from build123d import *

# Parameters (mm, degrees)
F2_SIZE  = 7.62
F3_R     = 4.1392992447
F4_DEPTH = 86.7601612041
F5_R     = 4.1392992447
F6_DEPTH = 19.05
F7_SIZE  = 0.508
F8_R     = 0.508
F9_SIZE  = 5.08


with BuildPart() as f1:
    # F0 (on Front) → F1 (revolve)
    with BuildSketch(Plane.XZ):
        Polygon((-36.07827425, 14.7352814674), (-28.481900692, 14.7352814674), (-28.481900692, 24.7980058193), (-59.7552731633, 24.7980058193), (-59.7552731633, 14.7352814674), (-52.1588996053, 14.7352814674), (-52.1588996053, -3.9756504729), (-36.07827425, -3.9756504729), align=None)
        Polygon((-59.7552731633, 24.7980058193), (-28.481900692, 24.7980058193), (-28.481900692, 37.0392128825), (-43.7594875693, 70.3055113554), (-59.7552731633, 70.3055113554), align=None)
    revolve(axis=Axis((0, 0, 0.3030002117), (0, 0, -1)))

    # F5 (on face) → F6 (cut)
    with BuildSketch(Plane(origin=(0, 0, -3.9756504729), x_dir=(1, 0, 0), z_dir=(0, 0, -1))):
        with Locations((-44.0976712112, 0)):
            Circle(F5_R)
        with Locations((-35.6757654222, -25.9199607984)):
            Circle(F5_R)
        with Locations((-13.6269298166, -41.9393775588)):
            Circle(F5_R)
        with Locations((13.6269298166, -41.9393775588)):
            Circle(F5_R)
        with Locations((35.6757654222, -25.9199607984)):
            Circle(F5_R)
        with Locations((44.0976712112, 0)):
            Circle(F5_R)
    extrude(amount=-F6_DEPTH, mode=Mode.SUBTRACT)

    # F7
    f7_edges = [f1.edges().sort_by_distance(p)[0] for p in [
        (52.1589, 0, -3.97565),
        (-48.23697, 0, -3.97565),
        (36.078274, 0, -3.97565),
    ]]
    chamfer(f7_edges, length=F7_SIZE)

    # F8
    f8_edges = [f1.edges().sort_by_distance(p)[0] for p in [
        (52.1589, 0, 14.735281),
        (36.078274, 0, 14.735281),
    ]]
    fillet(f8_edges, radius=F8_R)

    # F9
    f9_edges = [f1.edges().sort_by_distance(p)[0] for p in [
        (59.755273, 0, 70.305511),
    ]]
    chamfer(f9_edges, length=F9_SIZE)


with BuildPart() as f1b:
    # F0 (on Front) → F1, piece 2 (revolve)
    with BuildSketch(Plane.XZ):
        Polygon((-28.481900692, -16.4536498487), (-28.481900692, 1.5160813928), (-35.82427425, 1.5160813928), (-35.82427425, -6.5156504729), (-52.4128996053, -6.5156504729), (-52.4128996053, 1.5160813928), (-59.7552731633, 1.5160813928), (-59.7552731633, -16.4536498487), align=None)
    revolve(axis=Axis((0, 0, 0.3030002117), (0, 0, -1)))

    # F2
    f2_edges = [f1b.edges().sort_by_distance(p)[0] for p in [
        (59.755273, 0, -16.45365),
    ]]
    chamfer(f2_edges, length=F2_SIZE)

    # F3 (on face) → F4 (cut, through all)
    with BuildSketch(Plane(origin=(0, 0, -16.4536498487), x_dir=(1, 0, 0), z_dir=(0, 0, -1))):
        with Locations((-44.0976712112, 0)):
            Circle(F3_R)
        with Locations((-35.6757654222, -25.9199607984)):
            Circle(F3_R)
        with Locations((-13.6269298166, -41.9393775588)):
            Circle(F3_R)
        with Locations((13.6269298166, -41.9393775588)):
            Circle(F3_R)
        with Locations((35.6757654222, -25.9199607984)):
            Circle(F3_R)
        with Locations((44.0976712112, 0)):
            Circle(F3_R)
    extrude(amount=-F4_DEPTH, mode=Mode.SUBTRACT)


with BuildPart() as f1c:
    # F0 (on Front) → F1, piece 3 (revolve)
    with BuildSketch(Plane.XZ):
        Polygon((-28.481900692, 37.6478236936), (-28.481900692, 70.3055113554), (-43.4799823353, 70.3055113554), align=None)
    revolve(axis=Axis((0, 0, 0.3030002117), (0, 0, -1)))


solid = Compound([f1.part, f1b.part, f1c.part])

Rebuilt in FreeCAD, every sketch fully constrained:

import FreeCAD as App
import Part
import Sketcher

V = App.Vector
Q = App.Units.Quantity


def edges_at(feature, points):
    """Names of the edges that pass closest to the given points."""
    edges = feature.Shape.Edges
    near = lambda p: min(range(len(edges)), key=lambda i: edges[i].distToShape(Part.Vertex(*p))[0])
    return sorted({f"Edge{near(p) + 1}" for p in points})

doc = App.newDocument("Part")
body = doc.addObject("PartDesign::Body", "Body")

# Sketch on XZ plane
sketch1 = doc.addObject("Sketcher::SketchObject", "Sketch")
body.addObject(sketch1)
sketch1.AttachmentSupport = (doc.XZ_Plane, [""])
sketch1.MapMode = "FlatFace"
sketch1.addGeometry([
    Part.LineSegment(V(-36, 15, 0), V(-28, 15, 0)),  # 0
    Part.LineSegment(V(-28, 15, 0), V(-28, 37, 0)),  # 1
    Part.LineSegment(V(-28, 37, 0), V(-44, 70, 0)),  # 2
    Part.LineSegment(V(-44, 70, 0), V(-60, 70, 0)),  # 3
    Part.LineSegment(V(-60, 70, 0), V(-60, 15, 0)),  # 4
    Part.LineSegment(V(-60, 15, 0), V(-52, 15, 0)),  # 5
    Part.LineSegment(V(-52, 15, 0), V(-52, -4, 0)),  # 6
    Part.LineSegment(V(-52, -4, 0), V(-36, -4, 0)),  # 7
    Part.LineSegment(V(-36, -4, 0), V(-36, 15, 0)),  # 8
], False)
sketch1.addConstraint([
    Sketcher.Constraint("Coincident", 0, 2, 1, 1),
    Sketcher.Constraint("Coincident", 1, 2, 2, 1),
    Sketcher.Constraint("Coincident", 2, 2, 3, 1),
    Sketcher.Constraint("Coincident", 3, 2, 4, 1),
    Sketcher.Constraint("Coincident", 4, 2, 5, 1),
    Sketcher.Constraint("Coincident", 5, 2, 6, 1),
    Sketcher.Constraint("Coincident", 6, 2, 7, 1),
    Sketcher.Constraint("Coincident", 7, 2, 8, 1),
    Sketcher.Constraint("Coincident", 8, 2, 0, 1),
    Sketcher.Constraint("Horizontal", 0),
    Sketcher.Constraint("Vertical", 1),
    Sketcher.Constraint("Horizontal", 3),
    Sketcher.Constraint("Vertical", 4),
    Sketcher.Constraint("Horizontal", 5),
    Sketcher.Constraint("Vertical", 6),
    Sketcher.Constraint("Horizontal", 7),
    Sketcher.Constraint("Vertical", 8),
    Sketcher.Constraint("Horizontal", 0, 2, 4, 2),
    Sketcher.Constraint("Equal", 0, 5),
    Sketcher.Constraint("DistanceX", 5, 2, -1, 1, Q("2.0535 in")),
    Sketcher.Constraint("DistanceY", 1, 1, 1, 2, Q("22.303931 mm")),
    Sketcher.Constraint("DistanceY", 4, 2, 4, 1, Q("55.57023 mm")),
    Sketcher.Constraint("DistanceY", 6, 2, 6, 1, Q("18.710932 mm")),
    Sketcher.Constraint("DistanceX", 0, 2, -1, 1, Q("28.481901 mm")),
    Sketcher.Constraint("Distance", 2, Q("36.606711 mm")),
    Sketcher.Constraint("DistanceX", 0, 1, 0, 2, Q("7.596374 mm")),
    Sketcher.Constraint("DistanceY", -1, 1, 0, 2, Q("14.735281 mm")),
])
revolution = doc.addObject("PartDesign::Revolution", "Revolution")
body.addObject(revolution)
revolution.Profile = sketch1
revolution.ReferenceAxis = (sketch1, ["V_Axis"])
revolution.Angle = 360

# Sketch on XY plane
sketch2 = doc.addObject("Sketcher::SketchObject", "Sketch001")
body.addObject(sketch2)
sketch2.AttachmentSupport = (doc.XY_Plane, [""])
sketch2.MapMode = "FlatFace"
sketch2.AttachmentOffset = App.Placement(V(0, 0, -3.97565), App.Rotation())
sketch2.addGeometry([
    Part.Circle(V(-44.1, 0, 0), V(0, 0, 1), 4.1),  # 0
    Part.Circle(V(-35.7, 25.9, 0), V(0, 0, 1), 4.1),  # 1
    Part.Circle(V(-13.6, 41.9, 0), V(0, 0, 1), 4.1),  # 2
    Part.Circle(V(13.6, 41.9, 0), V(0, 0, 1), 4.1),  # 3
    Part.Circle(V(35.7, 25.9, 0), V(0, 0, 1), 4.1),  # 4
    Part.Circle(V(44.1, 0, 0), V(0, 0, 1), 4.1),  # 5
], False)
sketch2.addConstraint([
    Sketcher.Constraint("Equal", 0, 1),
    Sketcher.Constraint("Equal", 1, 2),
    Sketcher.Constraint("Equal", 2, 3),
    Sketcher.Constraint("Equal", 3, 4),
    Sketcher.Constraint("Equal", 4, 5),
    Sketcher.Constraint("Symmetric", 0, 3, 5, 3, -1, 1),
    Sketcher.Constraint("Symmetric", 2, 3, 3, 3, -2),
    Sketcher.Constraint("Symmetric", 1, 3, 4, 3, -2),
    Sketcher.Constraint("PointOnObject", 0, 3, -1),
    Sketcher.Constraint("Diameter", 0, Q("8.278598 mm")),
    Sketcher.Constraint("DistanceX", 0, 3, 3, 3, Q("57.724601 mm")),
    Sketcher.Constraint("DistanceX", 0, 3, -1, 1, Q("44.097671 mm")),
    Sketcher.Constraint("DistanceY", -1, 1, 1, 3, Q("25.919961 mm")),
    Sketcher.Constraint("DistanceX", 1, 3, 4, 3, Q("71.351531 mm")),
    Sketcher.Constraint("DistanceY", -1, 1, 2, 3, Q("41.939378 mm")),
])
pocket1 = doc.addObject("PartDesign::Pocket", "Pocket")
body.addObject(pocket1)
pocket1.Profile = sketch2
pocket1.Length = Q("0.75 in")
pocket1.Reversed = True
doc.recompute()

chamfer = doc.addObject("PartDesign::Chamfer", "Chamfer")
body.addObject(chamfer)
chamfer.Base = (pocket1, edges_at(pocket1, [(52.159, 0, -3.976), (-48.237, 0, -3.976), (36.078, 0, -3.976)]))
chamfer.Size = Q("0.02 in")
doc.recompute()

fillet = doc.addObject("PartDesign::Fillet", "Fillet")
body.addObject(fillet)
fillet.Base = (chamfer, edges_at(chamfer, [(52.159, 0, 14.735), (36.078, 0, 14.735)]))
fillet.Radius = Q("0.02 in")
doc.recompute()

chamfer2 = doc.addObject("PartDesign::Chamfer", "Chamfer001")
body.addObject(chamfer2)
chamfer2.Base = (fillet, edges_at(fillet, [(59.755, 0, 70.306)]))
chamfer2.Size = Q("0.2 in")
body2 = doc.addObject("PartDesign::Body", "Body001")

# Sketch on XZ plane
sketch3 = doc.addObject("Sketcher::SketchObject", "Sketch002")
body2.addObject(sketch3)
sketch3.AttachmentSupport = (doc.getObject("XZ_Plane001"), [""])
sketch3.MapMode = "FlatFace"
sketch3.addGeometry([
    Part.LineSegment(V(-28, -16, 0), V(-28, 2, 0)),  # 0
    Part.LineSegment(V(-28, 2, 0), V(-36, 2, 0)),  # 1
    Part.LineSegment(V(-36, 2, 0), V(-36, -7, 0)),  # 2
    Part.LineSegment(V(-36, -7, 0), V(-52, -7, 0)),  # 3
    Part.LineSegment(V(-52, -7, 0), V(-52, 2, 0)),  # 4
    Part.LineSegment(V(-52, 2, 0), V(-60, 2, 0)),  # 5
    Part.LineSegment(V(-60, 2, 0), V(-60, -16, 0)),  # 6
    Part.LineSegment(V(-60, -16, 0), V(-28, -16, 0)),  # 7
], False)
sketch3.addConstraint([
    Sketcher.Constraint("Coincident", 0, 2, 1, 1),
    Sketcher.Constraint("Coincident", 1, 2, 2, 1),
    Sketcher.Constraint("Coincident", 2, 2, 3, 1),
    Sketcher.Constraint("Coincident", 3, 2, 4, 1),
    Sketcher.Constraint("Coincident", 4, 2, 5, 1),
    Sketcher.Constraint("Coincident", 5, 2, 6, 1),
    Sketcher.Constraint("Coincident", 6, 2, 7, 1),
    Sketcher.Constraint("Coincident", 7, 2, 0, 1),
    Sketcher.Constraint("Vertical", 0),
    Sketcher.Constraint("Horizontal", 1),
    Sketcher.Constraint("Vertical", 2),
    Sketcher.Constraint("Horizontal", 3),
    Sketcher.Constraint("Vertical", 4),
    Sketcher.Constraint("Horizontal", 5),
    Sketcher.Constraint("Vertical", 6),
    Sketcher.Constraint("Horizontal", 7),
    Sketcher.Constraint("Horizontal", 1, 2, 4, 2),
    Sketcher.Constraint("Equal", 1, 5),
    Sketcher.Constraint("DistanceX", 3, 2, -1, 1, Q("2.0635 in")),
    Sketcher.Constraint("DistanceY", 0, 1, 0, 2, Q("17.969731 mm")),
    Sketcher.Constraint("DistanceY", 2, 2, 2, 1, Q("8.031732 mm")),
    Sketcher.Constraint("DistanceX", 0, 2, -1, 1, Q("28.481901 mm")),
    Sketcher.Constraint("DistanceX", 1, 2, 1, 1, Q("7.342374 mm")),
    Sketcher.Constraint("DistanceY", -1, 1, 0, 2, Q("1.516081 mm")),
])
revolution2 = doc.addObject("PartDesign::Revolution", "Revolution001")
body2.addObject(revolution2)
revolution2.Profile = sketch3
revolution2.ReferenceAxis = (sketch3, ["V_Axis"])
revolution2.Angle = 360
doc.recompute()

chamfer3 = doc.addObject("PartDesign::Chamfer", "Chamfer002")
body2.addObject(chamfer3)
chamfer3.Base = (revolution2, edges_at(revolution2, [(59.755, 0, -16.454)]))
chamfer3.Size = Q("0.3 in")

# Sketch on XY plane
sketch4 = doc.addObject("Sketcher::SketchObject", "Sketch003")
body2.addObject(sketch4)
sketch4.AttachmentSupport = (doc.getObject("XY_Plane001"), [""])
sketch4.MapMode = "FlatFace"
sketch4.AttachmentOffset = App.Placement(V(0, 0, -16.45365), App.Rotation())
sketch4.addGeometry([
    Part.Circle(V(-44.1, 0, 0), V(0, 0, 1), 4.1),  # 0
    Part.Circle(V(-35.7, 25.9, 0), V(0, 0, 1), 4.1),  # 1
    Part.Circle(V(-13.6, 41.9, 0), V(0, 0, 1), 4.1),  # 2
    Part.Circle(V(13.6, 41.9, 0), V(0, 0, 1), 4.1),  # 3
    Part.Circle(V(35.7, 25.9, 0), V(0, 0, 1), 4.1),  # 4
    Part.Circle(V(44.1, 0, 0), V(0, 0, 1), 4.1),  # 5
], False)
sketch4.addConstraint([
    Sketcher.Constraint("Equal", 0, 1),
    Sketcher.Constraint("Equal", 1, 2),
    Sketcher.Constraint("Equal", 2, 3),
    Sketcher.Constraint("Equal", 3, 4),
    Sketcher.Constraint("Equal", 4, 5),
    Sketcher.Constraint("Symmetric", 0, 3, 5, 3, -1, 1),
    Sketcher.Constraint("Symmetric", 2, 3, 3, 3, -2),
    Sketcher.Constraint("Symmetric", 1, 3, 4, 3, -2),
    Sketcher.Constraint("PointOnObject", 0, 3, -1),
    Sketcher.Constraint("Diameter", 0, Q("8.278598 mm")),
    Sketcher.Constraint("DistanceX", 0, 3, 3, 3, Q("57.724601 mm")),
    Sketcher.Constraint("DistanceX", 0, 3, -1, 1, Q("44.097671 mm")),
    Sketcher.Constraint("DistanceY", -1, 1, 1, 3, Q("25.919961 mm")),
    Sketcher.Constraint("DistanceX", 1, 3, 4, 3, Q("71.351531 mm")),
    Sketcher.Constraint("DistanceY", -1, 1, 2, 3, Q("41.939378 mm")),
])
pocket2 = doc.addObject("PartDesign::Pocket", "Pocket001")
body2.addObject(pocket2)
pocket2.Profile = sketch4
pocket2.Type = "ThroughAll"
pocket2.Reversed = True
body3 = doc.addObject("PartDesign::Body", "Body002")

# Sketch on XZ plane
sketch5 = doc.addObject("Sketcher::SketchObject", "Sketch004")
body3.addObject(sketch5)
sketch5.AttachmentSupport = (doc.getObject("XZ_Plane002"), [""])
sketch5.MapMode = "FlatFace"
sketch5.addGeometry([
    Part.LineSegment(V(-28, 38, 0), V(-28, 70, 0)),
    Part.LineSegment(V(-28, 70, 0), V(-43, 70, 0)),
    Part.LineSegment(V(-43, 70, 0), V(-28, 38, 0)),
], False)
sketch5.addConstraint([
    Sketcher.Constraint("Coincident", 0, 2, 1, 1),
    Sketcher.Constraint("Coincident", 1, 2, 2, 1),
    Sketcher.Constraint("Coincident", 2, 2, 0, 1),
    Sketcher.Constraint("Vertical", 0),
    Sketcher.Constraint("Horizontal", 1),
    Sketcher.Constraint("DistanceX", 1, 2, 1, 1, Q("14.998082 mm")),
    Sketcher.Constraint("DistanceX", 0, 2, -1, 1, Q("28.481901 mm")),
    Sketcher.Constraint("DistanceY", 0, 1, 0, 2, Q("32.657688 mm")),
    Sketcher.Constraint("DistanceY", -1, 1, 0, 2, Q("70.305511 mm")),
])
revolution3 = doc.addObject("PartDesign::Revolution", "Revolution002")
body3.addObject(revolution3)
revolution3.Profile = sketch5
revolution3.ReferenceAxis = (sketch5, ["V_Axis"])
revolution3.Angle = 360

doc.recompute()
